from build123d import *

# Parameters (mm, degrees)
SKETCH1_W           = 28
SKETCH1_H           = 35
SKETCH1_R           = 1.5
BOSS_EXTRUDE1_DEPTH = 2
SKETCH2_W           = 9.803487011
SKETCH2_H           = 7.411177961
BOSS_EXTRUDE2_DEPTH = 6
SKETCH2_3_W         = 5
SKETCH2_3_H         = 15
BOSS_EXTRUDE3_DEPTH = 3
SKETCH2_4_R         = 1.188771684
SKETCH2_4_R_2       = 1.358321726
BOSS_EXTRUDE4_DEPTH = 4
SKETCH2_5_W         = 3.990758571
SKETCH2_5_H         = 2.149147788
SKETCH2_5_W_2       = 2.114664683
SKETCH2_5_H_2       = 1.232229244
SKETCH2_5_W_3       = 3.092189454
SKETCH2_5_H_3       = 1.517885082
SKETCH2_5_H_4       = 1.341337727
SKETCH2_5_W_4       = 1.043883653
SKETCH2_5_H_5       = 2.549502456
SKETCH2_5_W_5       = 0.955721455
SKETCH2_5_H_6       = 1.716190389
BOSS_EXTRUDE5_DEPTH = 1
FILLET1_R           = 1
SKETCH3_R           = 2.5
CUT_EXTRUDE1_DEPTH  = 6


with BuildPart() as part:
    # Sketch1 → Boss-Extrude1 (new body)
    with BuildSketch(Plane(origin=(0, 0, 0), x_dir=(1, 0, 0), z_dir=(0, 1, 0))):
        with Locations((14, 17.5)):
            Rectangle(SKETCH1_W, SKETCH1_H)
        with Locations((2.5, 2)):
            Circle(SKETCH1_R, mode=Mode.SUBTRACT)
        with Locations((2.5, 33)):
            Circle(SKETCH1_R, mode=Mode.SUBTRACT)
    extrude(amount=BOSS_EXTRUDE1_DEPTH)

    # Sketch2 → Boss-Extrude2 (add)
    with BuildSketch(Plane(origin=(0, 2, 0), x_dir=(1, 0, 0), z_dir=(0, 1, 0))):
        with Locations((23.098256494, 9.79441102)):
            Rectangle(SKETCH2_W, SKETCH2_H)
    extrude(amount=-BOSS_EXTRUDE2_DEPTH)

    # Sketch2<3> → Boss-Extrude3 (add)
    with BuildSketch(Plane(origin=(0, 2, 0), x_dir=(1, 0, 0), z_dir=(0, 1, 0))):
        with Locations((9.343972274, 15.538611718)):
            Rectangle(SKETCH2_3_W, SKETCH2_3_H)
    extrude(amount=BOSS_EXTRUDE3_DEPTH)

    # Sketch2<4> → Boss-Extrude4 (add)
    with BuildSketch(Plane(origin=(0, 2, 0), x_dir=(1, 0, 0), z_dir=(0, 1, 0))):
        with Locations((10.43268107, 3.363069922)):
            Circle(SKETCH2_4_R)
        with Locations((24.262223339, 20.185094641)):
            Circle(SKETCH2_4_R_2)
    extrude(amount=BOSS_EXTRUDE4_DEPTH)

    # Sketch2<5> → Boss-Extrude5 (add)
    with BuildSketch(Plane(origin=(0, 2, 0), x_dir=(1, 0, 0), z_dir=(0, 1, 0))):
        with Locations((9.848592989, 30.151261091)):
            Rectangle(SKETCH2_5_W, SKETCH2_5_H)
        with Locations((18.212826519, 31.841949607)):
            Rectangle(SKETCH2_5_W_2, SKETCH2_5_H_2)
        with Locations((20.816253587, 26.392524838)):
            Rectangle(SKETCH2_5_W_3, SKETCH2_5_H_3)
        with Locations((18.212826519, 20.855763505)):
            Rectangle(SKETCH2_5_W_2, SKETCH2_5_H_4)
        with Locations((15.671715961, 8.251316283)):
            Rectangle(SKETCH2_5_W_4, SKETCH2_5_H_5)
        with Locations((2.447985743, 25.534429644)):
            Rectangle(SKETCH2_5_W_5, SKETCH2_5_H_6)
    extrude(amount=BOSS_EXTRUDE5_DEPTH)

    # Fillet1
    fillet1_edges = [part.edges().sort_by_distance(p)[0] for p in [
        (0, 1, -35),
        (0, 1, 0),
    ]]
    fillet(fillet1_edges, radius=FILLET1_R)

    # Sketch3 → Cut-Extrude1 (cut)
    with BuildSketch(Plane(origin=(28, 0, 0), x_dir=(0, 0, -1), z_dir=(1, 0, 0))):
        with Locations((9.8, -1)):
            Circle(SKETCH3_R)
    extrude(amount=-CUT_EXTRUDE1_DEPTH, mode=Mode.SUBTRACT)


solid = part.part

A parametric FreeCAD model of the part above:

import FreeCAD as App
import Part
import Sketcher


def edges_at(feature, points):
    """Names of the edges that pass closest to the given points."""
    edges = feature.Shape.Edges
    near = lambda p: min(range(len(edges)), key=lambda i: edges[i].distToShape(Part.Vertex(*p))[0])
    return sorted({f"Edge{near(p) + 1}" for p in points})


def add_polygon(sketch, points):
    """Adds a closed chain of lines whose ends are joined by coincident constraints."""
    first, n = sketch.GeometryCount, len(points)
    for a, b in zip(points, points[1:] + points[:1]):
        sketch.addGeometry(Part.LineSegment(App.Vector(*a, 0), App.Vector(*b, 0)), False)
    for i in range(n):
        sketch.addConstraint(Sketcher.Constraint("Coincident", first + i, 2, first + (i + 1) % n, 1))

doc = App.newDocument("Part")
body = doc.addObject("PartDesign::Body", "Body")

# Sketch on XZ plane
sketch1 = body.newObject("Sketcher::SketchObject", "Sketch")
sketch1.AttachmentSupport = (doc.getObject("XZ_Plane"), [""])
sketch1.MapMode = "FlatFace"
add_polygon(sketch1, [(0, -35), (0, 0), (28, 0), (28, -35)])  # lines 0-3
sketch1.addGeometry(Part.Circle(App.Vector(2.5, -2, 0), App.Vector(0, 0, 1), 1.5), False)  # 4
sketch1.addGeometry(Part.Circle(App.Vector(2.5, -33, 0), App.Vector(0, 0, 1), 1.5), False)  # 5
sketch1.addConstraint([
    Sketcher.Constraint("Vertical", 0),
    Sketcher.Constraint("Horizontal", 1),
    Sketcher.Constraint("Vertical", 2),
    Sketcher.Constraint("Horizontal", 3),
    Sketcher.Constraint("Coincident", 0, 2, -1, 1),
    Sketcher.Constraint("Equal", 4, 5),
    Sketcher.Constraint("Vertical", 4, 3, 5, 3),
    Sketcher.Constraint("Diameter", 4, 3.0),
    Sketcher.Constraint("DistanceX", 1, 1, 1, 2, 28.0),
    Sketcher.Constraint("DistanceY", 0, 1, 0, 2, 35.0),
    Sketcher.Constraint("DistanceY", 4, 3, -1, 1, 2.0),
    Sketcher.Constraint("DistanceY", 5, 3, -1, 1, 33.0),
    Sketcher.Constraint("DistanceX", -1, 1, 4, 3, 2.5),
])
pad1 = body.newObject("PartDesign::Pad", "Pad")
pad1.Profile = sketch1
pad1.Length = 2
pad1.Reversed = True

# Sketch on XZ plane
sketch2 = body.newObject("Sketcher::SketchObject", "Sketch001")
sketch2.AttachmentSupport = (doc.getObject("XZ_Plane"), [""])
sketch2.MapMode = "FlatFace"
sketch2.AttachmentOffset = App.Placement(App.Vector(0, 0, -2), App.Rotation())
add_polygon(sketch2, [(18, -14), (18, -6), (28, -6), (28, -14)])  # lines 0-3
sketch2.addConstraint([
    Sketcher.Constraint("Vertical", 0),
    Sketcher.Constraint("Horizontal", 1),
    Sketcher.Constraint("Vertical", 2),
    Sketcher.Constraint("Horizontal", 3),
    Sketcher.Constraint("DistanceX", -1, 1, 1, 2, 28.0),
    Sketcher.Constraint("DistanceY", 2, 2, -1, 1, 13.5),
    Sketcher.Constraint("DistanceX", 1, 1, 1, 2, 9.803487),
    Sketcher.Constraint("DistanceY", 0, 1, 0, 2, 7.411178),
])
pad2 = body.newObject("PartDesign::Pad", "Pad001")
pad2.Profile = sketch2
pad2.Length = 6

# Sketch on XZ plane
sketch3 = body.newObject("Sketcher::SketchObject", "Sketch002")
sketch3.AttachmentSupport = (doc.getObject("XZ_Plane"), [""])
sketch3.MapMode = "FlatFace"
sketch3.AttachmentOffset = App.Placement(App.Vector(0, 0, -2), App.Rotation())
add_polygon(sketch3, [(7, -23), (7, -8), (12, -8), (12, -23)])  # lines 0-3
sketch3.addConstraint([
    Sketcher.Constraint("Vertical", 0),
    Sketcher.Constraint("Horizontal", 1),
    Sketcher.Constraint("Vertical", 2),
    Sketcher.Constraint("Horizontal", 3),
    Sketcher.Constraint("DistanceX", 1, 1, 1, 2, 5.0),
    Sketcher.Constraint("DistanceY", 0, 1, 0, 2, 15.0),
    Sketcher.Constraint("DistanceY", 0, 2, -1, 1, 8.038612),
    Sketcher.Constraint("DistanceX", -1, 1, 0, 2, 6.843972),
])
pad3 = body.newObject("PartDesign::Pad", "Pad002")
pad3.Profile = sketch3
pad3.Length = 3
pad3.Reversed = True

# Sketch on XZ plane
sketch4 = body.newObject("Sketcher::SketchObject", "Sketch003")
sketch4.AttachmentSupport = (doc.getObject("XZ_Plane"), [""])
sketch4.MapMode = "FlatFace"
sketch4.AttachmentOffset = App.Placement(App.Vector(0, 0, -2), App.Rotation())
sketch4.addGeometry([
    Part.Circle(App.Vector(10.4, -3.4, 0), App.Vector(0, 0, 1), 1.2),
    Part.Circle(App.Vector(24.3, -20.2, 0), App.Vector(0, 0, 1), 1.4),
], False)
sketch4.addConstraint([
    Sketcher.Constraint("Diameter", 0, 2.377543),
    Sketcher.Constraint("Diameter", 1, 2.716643),
    Sketcher.Constraint("DistanceX", -1, 1, 0, 3, 10.432681),
    Sketcher.Constraint("DistanceY", 0, 3, -1, 1, 3.36307),
    Sketcher.Constraint("DistanceX", -1, 1, 1, 3, 24.262223),
    Sketcher.Constraint("DistanceY", 1, 3, -1, 1, 20.185095),
])
pad4 = body.newObject("PartDesign::Pad", "Pad003")
pad4.Profile = sketch4
pad4.Length = 4
pad4.Reversed = True

# Sketch on XZ plane
sketch5 = body.newObject("Sketcher::SketchObject", "Sketch004")
sketch5.AttachmentSupport = (doc.getObject("XZ_Plane"), [""])
sketch5.MapMode = "FlatFace"
sketch5.AttachmentOffset = App.Placement(App.Vector(0, 0, -2), App.Rotation())
add_polygon(sketch5, [(7.9, -31.2), (7.9, -29.1), (11.8, -29.1), (11.8, -31.2)])  # lines 0-3
add_polygon(sketch5, [(17.2, -32.5), (17.2, -31.2), (19.3, -31.2), (19.3, -32.5)])  # lines 4-7
add_polygon(sketch5, [(19.3, -27.2), (19.3, -25.6), (22.4, -25.6), (22.4, -27.2)])  # lines 8-11
add_polygon(sketch5, [(17.2, -21.5), (17.2, -20.2), (19.3, -20.2), (19.3, -21.5)])  # lines 12-15
add_polygon(sketch5, [(15.1, -9.5), (15.1, -7), (16.2, -7), (16.2, -9.5)])  # lines 16-19
add_polygon(sketch5, [(2, -26.4), (2, -24.7), (2.9, -24.7), (2.9, -26.4)])  # lines 20-23
sketch5.addConstraint([
    Sketcher.Constraint("Vertical", 0),
    Sketcher.Constraint("Horizontal", 1),
    Sketcher.Constraint("Vertical", 2),
    Sketcher.Constraint("Horizontal", 3),
    Sketcher.Constraint("Vertical", 4),
    Sketcher.Constraint("Horizontal", 5),
    Sketcher.Constraint("Vertical", 6),
    Sketcher.Constraint("Horizontal", 7),
    Sketcher.Constraint("Vertical", 8),
    Sketcher.Constraint("Horizontal", 9),
    Sketcher.Constraint("Vertical", 10),
    Sketcher.Constraint("Horizontal", 11),
    Sketcher.Constraint("Vertical", 12),
    Sketcher.Constraint("Horizontal", 13),
    Sketcher.Constraint("Vertical", 14),
    Sketcher.Constraint("Horizontal", 15),
    Sketcher.Constraint("Vertical", 16),
    Sketcher.Constraint("Horizontal", 17),
    Sketcher.Constraint("Vertical", 18),
    Sketcher.Constraint("Horizontal", 19),
    Sketcher.Constraint("Vertical", 20),
    Sketcher.Constraint("Horizontal", 21),
    Sketcher.Constraint("Vertical", 22),
    Sketcher.Constraint("Horizontal", 23),
    Sketcher.Constraint("Horizontal", 3, 2, 4, 2),
    Sketcher.Constraint("Vertical", 6, 2, 8, 2),
    Sketcher.Constraint("Vertical", 7, 2, 12, 2),
    Sketcher.Constraint("Vertical", 11, 2, 13, 2),
    Sketcher.Constraint("DistanceX", 1, 1, 1, 2, 3.990759),
    Sketcher.Constraint("DistanceX", 9, 1, 9, 2, 3.092189),
    Sketcher.Constraint("DistanceX", 21, 1, 21, 2, 0.955721),
    Sketcher.Constraint("DistanceY", 4, 1, 4, 2, 1.232229),
    Sketcher.Constraint("DistanceY", 20, 1, 20, 2, 1.71619),
    Sketcher.Constraint("DistanceX", 17, 2, 13, 2, 3.076501),
    Sketcher.Constraint("DistanceY", 3, 2, 20, 2, 6.549501),
    Sketcher.Constraint("DistanceX", 5, 1, 5, 2, 2.114665),
    Sketcher.Constraint("DistanceX", 17, 1, 17, 2, 1.043884),
    Sketcher.Constraint("DistanceY", 0, 1, 0, 2, 2.149148),
    Sketcher.Constraint("DistanceY", 8, 1, 8, 2, 1.517885),
    Sketcher.Constraint("DistanceY", 12, 1, 12, 2, 1.341338),
    Sketcher.Constraint("DistanceY", 16, 1, 16, 2, 2.549502),
    Sketcher.Constraint("DistanceX", -1, 1, 5, 2, 19.270159),
    Sketcher.Constraint("DistanceX", 2, 2, 4, 2, 5.311522),
    Sketcher.Constraint("DistanceY", 6, 2, 8, 2, 6.824482),
    Sketcher.Constraint("DistanceY", 8, 2, 14, 2, 4.10715),
    Sketcher.Constraint("DistanceY", 12, 2, 16, 2, 13.20853),
    Sketcher.Constraint("DistanceX", 20, 2, 0, 2, 5.883089),
    Sketcher.Constraint("DistanceY", 0, 2, -1, 1, 29.076687),
])
pad5 = body.newObject("PartDesign::Pad", "Pad004")
pad5.Profile = sketch5
pad5.Length = 1
pad5.Reversed = True
doc.recompute()

fillet = body.newObject("PartDesign::Fillet", "Fillet")
fillet.Base = (pad5, edges_at(pad5, [(0, 1, -35), (0, 1, 0)]))
fillet.Radius = 1

# Sketch on YZ plane
sketch6 = body.newObject("Sketcher::SketchObject", "Sketch005")
sketch6.AttachmentSupport = (doc.getObject("YZ_Plane"), [""])
sketch6.MapMode = "FlatFace"
sketch6.AttachmentOffset = App.Placement(App.Vector(0, 0, 28), App.Rotation())
sketch6.addGeometry(Part.Circle(App.Vector(-1, -9.8, 0), App.Vector(0, 0, 1), 2.5), False)
sketch6.addConstraint([
    Sketcher.Constraint("Diameter", 0, 5.0),
    Sketcher.Constraint("DistanceX", 0, 3, -1, 1, 1.0),
    Sketcher.Constraint("DistanceY", 0, 3, -1, 1, 9.8),
])
pocket1 = body.newObject("PartDesign::Pocket", "Pocket")
pocket1.Profile = sketch6
pocket1.Length = 6

doc.recompute()
